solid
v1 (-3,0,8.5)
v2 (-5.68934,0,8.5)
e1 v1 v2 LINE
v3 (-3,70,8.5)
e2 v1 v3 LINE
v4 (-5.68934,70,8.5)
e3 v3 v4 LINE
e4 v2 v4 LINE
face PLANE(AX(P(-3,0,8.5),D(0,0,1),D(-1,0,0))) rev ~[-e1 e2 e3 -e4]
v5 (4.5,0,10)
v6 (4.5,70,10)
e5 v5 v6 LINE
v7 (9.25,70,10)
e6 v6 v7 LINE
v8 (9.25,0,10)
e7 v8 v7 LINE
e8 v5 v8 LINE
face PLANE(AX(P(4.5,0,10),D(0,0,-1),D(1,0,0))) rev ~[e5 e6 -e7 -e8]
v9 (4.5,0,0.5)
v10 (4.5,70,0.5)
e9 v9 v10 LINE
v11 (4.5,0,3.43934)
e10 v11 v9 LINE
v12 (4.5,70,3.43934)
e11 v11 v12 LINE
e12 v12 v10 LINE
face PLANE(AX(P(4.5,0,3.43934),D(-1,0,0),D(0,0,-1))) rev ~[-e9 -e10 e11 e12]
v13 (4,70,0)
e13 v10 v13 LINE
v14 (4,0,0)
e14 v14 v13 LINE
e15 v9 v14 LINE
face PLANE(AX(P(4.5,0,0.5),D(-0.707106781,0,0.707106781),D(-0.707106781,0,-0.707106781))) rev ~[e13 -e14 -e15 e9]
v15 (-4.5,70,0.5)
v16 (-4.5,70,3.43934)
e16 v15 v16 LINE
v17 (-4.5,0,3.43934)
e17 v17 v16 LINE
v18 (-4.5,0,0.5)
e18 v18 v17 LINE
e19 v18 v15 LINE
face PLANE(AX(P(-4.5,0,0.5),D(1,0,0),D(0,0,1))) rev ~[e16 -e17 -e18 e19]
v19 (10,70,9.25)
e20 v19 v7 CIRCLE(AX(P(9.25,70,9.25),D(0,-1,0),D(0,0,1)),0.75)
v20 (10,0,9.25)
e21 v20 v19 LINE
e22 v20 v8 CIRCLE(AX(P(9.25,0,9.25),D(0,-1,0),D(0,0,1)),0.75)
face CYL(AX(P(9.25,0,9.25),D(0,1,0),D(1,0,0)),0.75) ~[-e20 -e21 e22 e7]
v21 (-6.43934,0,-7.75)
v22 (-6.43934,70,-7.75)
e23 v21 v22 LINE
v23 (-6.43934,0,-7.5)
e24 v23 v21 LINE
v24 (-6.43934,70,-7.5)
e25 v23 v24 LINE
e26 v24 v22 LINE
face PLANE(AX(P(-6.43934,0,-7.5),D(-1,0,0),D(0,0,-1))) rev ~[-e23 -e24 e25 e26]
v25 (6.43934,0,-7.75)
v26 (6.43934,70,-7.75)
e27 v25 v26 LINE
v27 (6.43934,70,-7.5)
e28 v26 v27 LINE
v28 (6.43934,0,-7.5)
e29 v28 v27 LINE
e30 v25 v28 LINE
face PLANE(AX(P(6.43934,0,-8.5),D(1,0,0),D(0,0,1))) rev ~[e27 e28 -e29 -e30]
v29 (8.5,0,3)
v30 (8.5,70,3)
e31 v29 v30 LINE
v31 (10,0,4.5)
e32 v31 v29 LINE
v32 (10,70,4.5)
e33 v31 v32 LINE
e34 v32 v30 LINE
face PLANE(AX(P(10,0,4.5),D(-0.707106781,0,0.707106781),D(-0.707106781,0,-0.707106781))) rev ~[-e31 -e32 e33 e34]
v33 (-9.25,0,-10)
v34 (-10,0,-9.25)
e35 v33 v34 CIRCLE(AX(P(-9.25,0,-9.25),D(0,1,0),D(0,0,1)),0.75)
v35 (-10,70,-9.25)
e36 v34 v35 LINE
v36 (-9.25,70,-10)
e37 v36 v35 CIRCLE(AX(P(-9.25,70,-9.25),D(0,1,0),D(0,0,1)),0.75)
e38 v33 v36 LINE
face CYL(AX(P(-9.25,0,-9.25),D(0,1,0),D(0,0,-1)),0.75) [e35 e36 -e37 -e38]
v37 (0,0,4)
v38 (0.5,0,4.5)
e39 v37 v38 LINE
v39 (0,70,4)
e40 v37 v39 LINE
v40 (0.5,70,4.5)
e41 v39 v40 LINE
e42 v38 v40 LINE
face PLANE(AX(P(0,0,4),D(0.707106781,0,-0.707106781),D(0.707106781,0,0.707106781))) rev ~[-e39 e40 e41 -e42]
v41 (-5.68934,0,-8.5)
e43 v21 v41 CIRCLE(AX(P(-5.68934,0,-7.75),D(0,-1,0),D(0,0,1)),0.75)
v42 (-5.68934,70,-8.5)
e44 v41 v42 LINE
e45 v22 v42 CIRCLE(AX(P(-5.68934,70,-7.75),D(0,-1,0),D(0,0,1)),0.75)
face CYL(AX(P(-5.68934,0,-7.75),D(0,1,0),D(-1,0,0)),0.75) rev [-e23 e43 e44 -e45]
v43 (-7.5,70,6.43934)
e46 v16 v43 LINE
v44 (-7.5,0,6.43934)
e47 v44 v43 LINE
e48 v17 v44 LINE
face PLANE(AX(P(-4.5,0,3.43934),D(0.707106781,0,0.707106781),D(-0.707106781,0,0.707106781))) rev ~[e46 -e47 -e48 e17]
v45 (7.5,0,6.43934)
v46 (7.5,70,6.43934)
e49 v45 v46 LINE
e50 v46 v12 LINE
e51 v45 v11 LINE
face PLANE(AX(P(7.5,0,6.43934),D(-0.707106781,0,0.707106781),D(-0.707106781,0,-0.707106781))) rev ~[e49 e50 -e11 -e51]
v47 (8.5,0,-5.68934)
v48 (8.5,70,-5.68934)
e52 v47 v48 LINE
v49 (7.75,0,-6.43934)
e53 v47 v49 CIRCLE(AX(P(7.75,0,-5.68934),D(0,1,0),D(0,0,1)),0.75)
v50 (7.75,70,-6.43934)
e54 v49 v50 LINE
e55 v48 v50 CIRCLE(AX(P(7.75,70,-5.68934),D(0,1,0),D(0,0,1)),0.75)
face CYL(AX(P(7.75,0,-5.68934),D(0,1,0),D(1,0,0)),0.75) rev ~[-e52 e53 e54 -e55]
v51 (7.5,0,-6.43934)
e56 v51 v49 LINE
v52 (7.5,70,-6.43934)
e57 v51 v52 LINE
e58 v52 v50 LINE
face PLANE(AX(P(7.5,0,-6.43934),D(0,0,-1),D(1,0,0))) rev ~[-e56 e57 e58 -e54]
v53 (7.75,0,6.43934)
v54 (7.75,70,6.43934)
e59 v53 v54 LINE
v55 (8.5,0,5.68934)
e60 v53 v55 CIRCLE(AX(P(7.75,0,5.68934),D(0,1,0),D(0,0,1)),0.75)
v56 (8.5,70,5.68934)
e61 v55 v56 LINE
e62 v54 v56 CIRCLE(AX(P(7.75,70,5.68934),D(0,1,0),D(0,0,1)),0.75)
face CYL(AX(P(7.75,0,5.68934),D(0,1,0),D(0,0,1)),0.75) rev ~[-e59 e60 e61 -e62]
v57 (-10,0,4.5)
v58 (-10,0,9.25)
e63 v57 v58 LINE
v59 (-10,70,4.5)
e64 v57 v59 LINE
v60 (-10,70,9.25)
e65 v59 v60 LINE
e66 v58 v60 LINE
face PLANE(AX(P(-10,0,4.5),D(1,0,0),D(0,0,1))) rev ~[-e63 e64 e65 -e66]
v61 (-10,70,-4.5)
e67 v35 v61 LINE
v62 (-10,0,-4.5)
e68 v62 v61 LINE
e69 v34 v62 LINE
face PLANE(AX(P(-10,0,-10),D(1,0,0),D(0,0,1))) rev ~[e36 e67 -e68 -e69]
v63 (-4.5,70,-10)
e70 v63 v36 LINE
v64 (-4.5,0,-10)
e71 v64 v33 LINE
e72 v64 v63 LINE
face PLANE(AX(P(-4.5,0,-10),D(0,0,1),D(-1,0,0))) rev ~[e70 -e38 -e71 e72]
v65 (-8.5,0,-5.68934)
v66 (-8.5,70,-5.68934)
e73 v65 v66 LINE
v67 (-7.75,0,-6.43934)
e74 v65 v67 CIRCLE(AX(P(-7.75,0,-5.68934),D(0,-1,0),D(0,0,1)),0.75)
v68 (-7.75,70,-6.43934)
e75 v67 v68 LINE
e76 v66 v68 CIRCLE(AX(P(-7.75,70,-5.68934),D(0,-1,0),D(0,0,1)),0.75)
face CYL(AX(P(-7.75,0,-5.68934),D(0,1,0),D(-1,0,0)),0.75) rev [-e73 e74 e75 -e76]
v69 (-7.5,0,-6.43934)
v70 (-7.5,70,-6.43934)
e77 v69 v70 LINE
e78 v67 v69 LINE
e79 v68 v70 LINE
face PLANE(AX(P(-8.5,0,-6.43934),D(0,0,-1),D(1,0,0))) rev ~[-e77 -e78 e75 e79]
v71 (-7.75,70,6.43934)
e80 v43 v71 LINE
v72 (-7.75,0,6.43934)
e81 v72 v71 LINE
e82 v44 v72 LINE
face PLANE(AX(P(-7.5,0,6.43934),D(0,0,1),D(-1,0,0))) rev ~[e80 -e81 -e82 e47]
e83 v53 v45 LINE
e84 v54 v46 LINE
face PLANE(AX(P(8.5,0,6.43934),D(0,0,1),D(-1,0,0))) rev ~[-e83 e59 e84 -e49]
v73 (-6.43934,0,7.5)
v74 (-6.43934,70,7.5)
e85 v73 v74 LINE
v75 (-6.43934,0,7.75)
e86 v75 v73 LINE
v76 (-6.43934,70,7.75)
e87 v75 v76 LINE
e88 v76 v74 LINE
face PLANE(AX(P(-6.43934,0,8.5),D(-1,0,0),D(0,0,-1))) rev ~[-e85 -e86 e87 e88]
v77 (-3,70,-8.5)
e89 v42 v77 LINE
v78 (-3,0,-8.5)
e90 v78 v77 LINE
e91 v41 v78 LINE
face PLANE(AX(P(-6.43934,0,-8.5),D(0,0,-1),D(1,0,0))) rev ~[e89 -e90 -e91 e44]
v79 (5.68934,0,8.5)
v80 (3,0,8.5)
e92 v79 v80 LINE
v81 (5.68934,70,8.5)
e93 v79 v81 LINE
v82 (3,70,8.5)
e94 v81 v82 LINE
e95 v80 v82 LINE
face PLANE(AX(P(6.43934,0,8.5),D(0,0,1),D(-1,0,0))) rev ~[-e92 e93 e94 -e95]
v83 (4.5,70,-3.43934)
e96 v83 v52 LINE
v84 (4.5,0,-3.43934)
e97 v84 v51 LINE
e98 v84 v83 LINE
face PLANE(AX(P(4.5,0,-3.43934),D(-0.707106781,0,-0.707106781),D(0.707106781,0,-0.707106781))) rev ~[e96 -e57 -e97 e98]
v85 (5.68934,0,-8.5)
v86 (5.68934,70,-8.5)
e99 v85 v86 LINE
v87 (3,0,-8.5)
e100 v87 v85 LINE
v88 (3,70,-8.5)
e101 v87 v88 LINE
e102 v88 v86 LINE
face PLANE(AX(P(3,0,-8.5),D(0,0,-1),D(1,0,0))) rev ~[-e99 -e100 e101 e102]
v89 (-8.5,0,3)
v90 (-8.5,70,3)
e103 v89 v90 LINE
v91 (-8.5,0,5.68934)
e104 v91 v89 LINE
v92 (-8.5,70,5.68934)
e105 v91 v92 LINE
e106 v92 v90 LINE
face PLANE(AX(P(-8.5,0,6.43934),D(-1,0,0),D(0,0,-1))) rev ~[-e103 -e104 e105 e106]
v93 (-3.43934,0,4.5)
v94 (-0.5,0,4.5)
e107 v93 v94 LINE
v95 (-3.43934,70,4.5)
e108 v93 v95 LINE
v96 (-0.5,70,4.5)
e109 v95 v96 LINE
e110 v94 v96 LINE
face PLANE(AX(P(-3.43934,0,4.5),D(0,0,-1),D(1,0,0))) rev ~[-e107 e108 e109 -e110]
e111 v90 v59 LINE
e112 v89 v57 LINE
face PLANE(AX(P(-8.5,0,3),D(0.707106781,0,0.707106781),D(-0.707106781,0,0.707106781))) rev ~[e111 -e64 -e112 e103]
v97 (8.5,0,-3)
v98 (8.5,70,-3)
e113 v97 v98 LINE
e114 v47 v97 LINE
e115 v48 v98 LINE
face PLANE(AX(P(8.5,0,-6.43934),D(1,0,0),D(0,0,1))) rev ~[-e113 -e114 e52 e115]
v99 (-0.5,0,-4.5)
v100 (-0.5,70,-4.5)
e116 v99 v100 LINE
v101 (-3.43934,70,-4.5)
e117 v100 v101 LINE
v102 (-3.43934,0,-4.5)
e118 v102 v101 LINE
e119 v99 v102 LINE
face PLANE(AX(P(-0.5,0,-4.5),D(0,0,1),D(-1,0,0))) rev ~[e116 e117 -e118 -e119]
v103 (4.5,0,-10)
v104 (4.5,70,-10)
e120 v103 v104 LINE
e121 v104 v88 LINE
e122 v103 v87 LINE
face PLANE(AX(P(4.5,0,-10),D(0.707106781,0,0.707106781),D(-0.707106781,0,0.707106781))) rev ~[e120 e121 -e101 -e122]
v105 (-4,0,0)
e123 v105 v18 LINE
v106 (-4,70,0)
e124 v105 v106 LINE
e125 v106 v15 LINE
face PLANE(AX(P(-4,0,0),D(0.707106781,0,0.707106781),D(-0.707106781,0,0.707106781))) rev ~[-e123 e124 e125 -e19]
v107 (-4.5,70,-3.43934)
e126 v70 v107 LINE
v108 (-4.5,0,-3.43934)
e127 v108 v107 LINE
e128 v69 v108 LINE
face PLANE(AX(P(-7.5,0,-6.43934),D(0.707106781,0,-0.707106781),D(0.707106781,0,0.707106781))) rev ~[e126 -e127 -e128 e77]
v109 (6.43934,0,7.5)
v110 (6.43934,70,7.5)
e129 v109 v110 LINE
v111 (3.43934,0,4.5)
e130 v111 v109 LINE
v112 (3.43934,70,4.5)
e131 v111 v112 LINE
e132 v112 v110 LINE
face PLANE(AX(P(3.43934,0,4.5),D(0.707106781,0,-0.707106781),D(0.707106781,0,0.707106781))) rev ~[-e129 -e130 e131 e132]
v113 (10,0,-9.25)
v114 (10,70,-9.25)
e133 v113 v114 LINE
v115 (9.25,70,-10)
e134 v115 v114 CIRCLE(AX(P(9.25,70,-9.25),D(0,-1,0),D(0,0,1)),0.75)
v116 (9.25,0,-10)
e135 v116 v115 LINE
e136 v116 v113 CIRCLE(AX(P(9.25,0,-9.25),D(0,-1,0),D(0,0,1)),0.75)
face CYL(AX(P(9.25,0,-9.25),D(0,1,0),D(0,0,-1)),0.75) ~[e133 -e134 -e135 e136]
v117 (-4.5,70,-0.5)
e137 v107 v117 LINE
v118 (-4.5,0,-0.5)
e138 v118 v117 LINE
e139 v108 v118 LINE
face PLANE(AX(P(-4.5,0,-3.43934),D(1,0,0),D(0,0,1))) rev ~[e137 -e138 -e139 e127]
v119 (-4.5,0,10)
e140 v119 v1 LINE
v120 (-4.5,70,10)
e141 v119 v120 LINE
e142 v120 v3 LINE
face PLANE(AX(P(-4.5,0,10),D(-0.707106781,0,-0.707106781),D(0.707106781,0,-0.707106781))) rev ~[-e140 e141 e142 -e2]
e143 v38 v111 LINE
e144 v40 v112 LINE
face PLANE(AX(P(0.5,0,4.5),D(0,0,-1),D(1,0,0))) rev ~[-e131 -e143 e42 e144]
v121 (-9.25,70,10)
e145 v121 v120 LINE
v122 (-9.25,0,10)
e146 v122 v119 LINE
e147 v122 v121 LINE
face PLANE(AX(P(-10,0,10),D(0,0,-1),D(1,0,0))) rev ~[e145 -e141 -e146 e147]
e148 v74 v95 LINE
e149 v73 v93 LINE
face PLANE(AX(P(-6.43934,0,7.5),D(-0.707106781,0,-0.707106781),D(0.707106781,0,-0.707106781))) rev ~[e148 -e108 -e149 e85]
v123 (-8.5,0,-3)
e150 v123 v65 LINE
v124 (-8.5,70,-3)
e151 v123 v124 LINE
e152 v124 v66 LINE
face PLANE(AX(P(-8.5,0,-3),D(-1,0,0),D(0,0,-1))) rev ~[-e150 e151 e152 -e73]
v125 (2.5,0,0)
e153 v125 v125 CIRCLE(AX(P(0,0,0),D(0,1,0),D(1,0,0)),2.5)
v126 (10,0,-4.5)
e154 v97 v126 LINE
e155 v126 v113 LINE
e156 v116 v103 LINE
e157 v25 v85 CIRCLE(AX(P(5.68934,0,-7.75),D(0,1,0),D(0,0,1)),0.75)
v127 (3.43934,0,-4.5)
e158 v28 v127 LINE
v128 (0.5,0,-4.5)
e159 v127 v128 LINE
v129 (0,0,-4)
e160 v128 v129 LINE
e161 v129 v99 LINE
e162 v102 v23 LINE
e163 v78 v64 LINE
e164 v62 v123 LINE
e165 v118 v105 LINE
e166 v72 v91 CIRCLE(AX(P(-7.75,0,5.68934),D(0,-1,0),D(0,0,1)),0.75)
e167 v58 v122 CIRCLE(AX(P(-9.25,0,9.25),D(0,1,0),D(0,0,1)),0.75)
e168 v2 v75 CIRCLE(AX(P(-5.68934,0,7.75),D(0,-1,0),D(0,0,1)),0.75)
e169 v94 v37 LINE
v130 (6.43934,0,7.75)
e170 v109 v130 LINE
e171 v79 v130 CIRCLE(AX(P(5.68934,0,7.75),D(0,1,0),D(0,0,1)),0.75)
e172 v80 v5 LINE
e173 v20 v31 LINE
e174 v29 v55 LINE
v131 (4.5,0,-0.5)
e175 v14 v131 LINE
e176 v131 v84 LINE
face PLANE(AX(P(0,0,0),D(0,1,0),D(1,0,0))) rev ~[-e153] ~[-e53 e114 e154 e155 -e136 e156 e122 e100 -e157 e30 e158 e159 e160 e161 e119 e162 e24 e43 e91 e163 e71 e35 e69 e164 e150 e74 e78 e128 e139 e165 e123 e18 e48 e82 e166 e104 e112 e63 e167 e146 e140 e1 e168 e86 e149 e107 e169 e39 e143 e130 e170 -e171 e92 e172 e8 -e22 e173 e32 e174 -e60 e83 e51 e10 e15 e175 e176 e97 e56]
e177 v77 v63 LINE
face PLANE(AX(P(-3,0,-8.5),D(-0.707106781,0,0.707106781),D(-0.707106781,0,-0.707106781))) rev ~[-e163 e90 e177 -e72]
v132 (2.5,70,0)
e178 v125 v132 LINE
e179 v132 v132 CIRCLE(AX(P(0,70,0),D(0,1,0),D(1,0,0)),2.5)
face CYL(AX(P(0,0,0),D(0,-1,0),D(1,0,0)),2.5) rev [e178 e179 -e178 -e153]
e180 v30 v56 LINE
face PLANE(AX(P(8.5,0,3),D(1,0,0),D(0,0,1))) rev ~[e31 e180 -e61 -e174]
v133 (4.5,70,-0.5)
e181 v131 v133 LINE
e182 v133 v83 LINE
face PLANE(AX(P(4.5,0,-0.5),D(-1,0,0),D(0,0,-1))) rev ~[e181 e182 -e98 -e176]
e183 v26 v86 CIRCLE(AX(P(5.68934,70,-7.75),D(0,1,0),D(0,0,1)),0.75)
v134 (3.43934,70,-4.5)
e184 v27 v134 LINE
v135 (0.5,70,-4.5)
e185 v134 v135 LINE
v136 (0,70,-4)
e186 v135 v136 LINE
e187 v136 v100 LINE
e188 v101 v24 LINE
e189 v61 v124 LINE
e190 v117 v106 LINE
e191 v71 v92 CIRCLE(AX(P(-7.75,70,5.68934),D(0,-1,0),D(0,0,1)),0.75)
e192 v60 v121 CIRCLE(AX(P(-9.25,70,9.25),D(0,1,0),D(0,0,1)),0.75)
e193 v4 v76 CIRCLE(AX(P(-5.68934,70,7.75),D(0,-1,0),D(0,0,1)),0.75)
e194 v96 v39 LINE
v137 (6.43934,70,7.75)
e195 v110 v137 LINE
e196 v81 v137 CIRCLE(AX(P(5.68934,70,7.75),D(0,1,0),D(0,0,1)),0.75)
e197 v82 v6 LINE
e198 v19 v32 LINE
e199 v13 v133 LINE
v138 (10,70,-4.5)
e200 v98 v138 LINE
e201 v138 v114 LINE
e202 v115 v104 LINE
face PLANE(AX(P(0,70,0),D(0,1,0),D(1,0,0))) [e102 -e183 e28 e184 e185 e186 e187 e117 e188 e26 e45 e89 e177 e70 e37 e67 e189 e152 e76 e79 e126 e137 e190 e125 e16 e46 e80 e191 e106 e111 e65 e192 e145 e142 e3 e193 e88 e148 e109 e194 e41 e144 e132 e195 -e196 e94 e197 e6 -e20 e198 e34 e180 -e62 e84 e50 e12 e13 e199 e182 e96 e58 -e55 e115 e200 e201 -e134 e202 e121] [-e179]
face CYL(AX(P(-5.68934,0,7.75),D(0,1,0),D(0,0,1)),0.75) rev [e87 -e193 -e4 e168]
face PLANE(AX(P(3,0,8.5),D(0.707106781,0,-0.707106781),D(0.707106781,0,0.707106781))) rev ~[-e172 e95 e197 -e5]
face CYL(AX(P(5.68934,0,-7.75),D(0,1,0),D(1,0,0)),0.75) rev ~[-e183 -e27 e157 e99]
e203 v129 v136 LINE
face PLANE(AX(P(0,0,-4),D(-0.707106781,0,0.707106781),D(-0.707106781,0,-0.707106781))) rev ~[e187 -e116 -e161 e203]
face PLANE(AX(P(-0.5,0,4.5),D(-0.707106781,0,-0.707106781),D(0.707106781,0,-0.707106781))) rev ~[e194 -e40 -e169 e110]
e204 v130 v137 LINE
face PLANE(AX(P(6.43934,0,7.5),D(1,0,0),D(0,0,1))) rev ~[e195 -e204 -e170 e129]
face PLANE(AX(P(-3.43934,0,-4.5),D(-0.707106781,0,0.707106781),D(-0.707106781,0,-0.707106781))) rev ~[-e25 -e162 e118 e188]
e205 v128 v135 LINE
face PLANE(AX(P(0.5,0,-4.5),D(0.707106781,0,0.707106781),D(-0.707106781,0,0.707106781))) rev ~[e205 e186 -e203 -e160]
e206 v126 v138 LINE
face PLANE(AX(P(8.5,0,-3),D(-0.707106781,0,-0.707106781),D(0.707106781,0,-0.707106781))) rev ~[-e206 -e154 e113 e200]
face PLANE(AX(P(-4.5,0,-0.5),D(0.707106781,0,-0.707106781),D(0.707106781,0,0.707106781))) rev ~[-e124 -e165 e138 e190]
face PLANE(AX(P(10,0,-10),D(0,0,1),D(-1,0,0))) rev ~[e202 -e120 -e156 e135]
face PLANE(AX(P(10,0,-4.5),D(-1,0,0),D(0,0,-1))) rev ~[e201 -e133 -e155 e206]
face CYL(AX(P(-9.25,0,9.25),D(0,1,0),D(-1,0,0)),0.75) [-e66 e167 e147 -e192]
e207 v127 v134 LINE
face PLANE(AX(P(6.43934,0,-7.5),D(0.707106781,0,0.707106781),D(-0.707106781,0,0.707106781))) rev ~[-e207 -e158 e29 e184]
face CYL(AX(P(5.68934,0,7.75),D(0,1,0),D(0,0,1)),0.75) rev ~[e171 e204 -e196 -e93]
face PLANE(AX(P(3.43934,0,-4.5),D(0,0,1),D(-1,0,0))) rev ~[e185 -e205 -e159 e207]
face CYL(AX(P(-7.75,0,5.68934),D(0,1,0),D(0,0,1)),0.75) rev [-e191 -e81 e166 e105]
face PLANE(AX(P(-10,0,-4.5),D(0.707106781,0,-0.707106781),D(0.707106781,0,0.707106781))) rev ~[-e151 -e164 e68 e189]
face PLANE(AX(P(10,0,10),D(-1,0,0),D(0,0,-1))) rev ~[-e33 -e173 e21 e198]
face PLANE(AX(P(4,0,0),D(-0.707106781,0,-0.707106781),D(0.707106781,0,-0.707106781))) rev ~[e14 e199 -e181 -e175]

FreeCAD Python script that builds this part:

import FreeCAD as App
import Part
import Sketcher
from FreeCAD import Vector
Q = App.Units.Quantity


def edges_at(feature, points):
    """Names of the edges that pass closest to the given points."""
    edges = feature.Shape.Edges
    near = lambda p: min(range(len(edges)), key=lambda i: edges[i].distToShape(Part.Vertex(*p))[0])
    return sorted({f"Edge{near(p) + 1}" for p in points})


def add_polygon(sketch, points):
    """Adds a closed chain of lines whose ends are joined by coincident constraints."""
    first, n = sketch.GeometryCount, len(points)
    for a, b in zip(points, points[1:] + points[:1]):
        sketch.addGeometry(Part.LineSegment(App.Vector(*a, 0), App.Vector(*b, 0)), False)
    for i in range(n):
        sketch.addConstraint(Sketcher.Constraint("Coincident", first + i, 2, first + (i + 1) % n, 1))

doc = App.newDocument("Part")
body = doc.addObject("PartDesign::Body", "Body")

# Sketch on XZ plane
sketch1 = body.newObject("Sketcher::SketchObject", "Sketch")
sketch1.AttachmentSupport = (doc.getObject("XZ_Plane"), [""])
sketch1.MapMode = "FlatFace"
add_polygon(sketch1, [(0, -4), (-0.5, -4.5), (-3.43934, -4.5), (-6.43934, -7.5), (-6.43934, -8.5), (-3, -8.5), (-4.5, -10), (-10, -10), (-10, -4.5), (-8.5, -3), (-8.5, -6.43934), (-7.5, -6.43934), (-4.5, -3.43934), (-4.5, -0.5), (-4, 0), (-4.5, 0.5), (-4.5, 3.43934), (-7.5, 6.43934), (-8.5, 6.43934), (-8.5, 3), (-10, 4.5), (-10, 10), (-4.5, 10), (-3, 8.5), (-6.43934, 8.5), (-6.43934, 7.5), (-3.43934, 4.5), (-0.5, 4.5), (0, 4), (0.5, 4.5), (3.43934, 4.5), (6.43934, 7.5), (6.43934, 8.5), (3, 8.5), (4.5, 10), (10, 10), (10, 4.5), (8.5, 3), (8.5, 6.43934), (7.5, 6.43934), (4.5, 3.43934), (4.5, 0.5), (4, 0), (4.5, -0.5), (4.5, -3.43934), (7.5, -6.43934), (8.5, -6.43934), (8.5, -3), (10, -4.5), (10, -10), (4.5, -10), (3, -8.5), (6.43934, -8.5), (6.43934, -7.5), (3.43934, -4.5), (0.5, -4.5)])  # lines 0-55
sketch1.addGeometry(Part.Circle(Vector(0, 0, 0), Vector(0, 0, 1), 2.5), False)  # 56
sketch1.addConstraint([
    Sketcher.Constraint("Horizontal", 1),
    Sketcher.Constraint("Vertical", 3),
    Sketcher.Constraint("Horizontal", 4),
    Sketcher.Constraint("Horizontal", 6),
    Sketcher.Constraint("Vertical", 7),
    Sketcher.Constraint("Vertical", 9),
    Sketcher.Constraint("Horizontal", 10),
    Sketcher.Constraint("Vertical", 12),
    Sketcher.Constraint("Vertical", 15),
    Sketcher.Constraint("Horizontal", 17),
    Sketcher.Constraint("Vertical", 18),
    Sketcher.Constraint("Vertical", 20),
    Sketcher.Constraint("Horizontal", 21),
    Sketcher.Constraint("Horizontal", 23),
    Sketcher.Constraint("Vertical", 24),
    Sketcher.Constraint("Horizontal", 26),
    Sketcher.Constraint("Horizontal", 29),
    Sketcher.Constraint("Vertical", 31),
    Sketcher.Constraint("Horizontal", 32),
    Sketcher.Constraint("Horizontal", 34),
    Sketcher.Constraint("Vertical", 35),
    Sketcher.Constraint("Vertical", 37),
    Sketcher.Constraint("Horizontal", 38),
    Sketcher.Constraint("Vertical", 40),
    Sketcher.Constraint("Vertical", 43),
    Sketcher.Constraint("Horizontal", 45),
    Sketcher.Constraint("Vertical", 46),
    Sketcher.Constraint("Vertical", 48),
    Sketcher.Constraint("Horizontal", 49),
    Sketcher.Constraint("Horizontal", 51),
    Sketcher.Constraint("Vertical", 52),
    Sketcher.Constraint("Horizontal", 54),
    Sketcher.Constraint("Coincident", 56, 3, -1, 1),
    Sketcher.Constraint("Symmetric", 0, 2, 28, 2, -1, 1),
    Sketcher.Constraint("Symmetric", 2, 2, 30, 2, -1, 1),
    Sketcher.Constraint("Symmetric", 4, 2, 32, 2, -1, 1),
    Sketcher.Constraint("Symmetric", 5, 2, 33, 2, -1, 1),
    Sketcher.Constraint("Symmetric", 7, 2, 35, 2, -1, 1),
    Sketcher.Constraint("Symmetric", 8, 2, 36, 2, -1, 1),
    Sketcher.Constraint("Symmetric", 10, 2, 38, 2, -1, 1),
    Sketcher.Constraint("Symmetric", 11, 2, 39, 2, -1, 1),
    Sketcher.Constraint("Symmetric", 13, 2, 41, 2, -1, 1),
    Sketcher.Constraint("Symmetric", 14, 2, 42, 2, -1, 1),
    Sketcher.Constraint("Symmetric", 16, 2, 44, 2, -1, 1),
    Sketcher.Constraint("Symmetric", 18, 2, 46, 2, -1, 1),
    Sketcher.Constraint("Symmetric", 19, 2, 47, 2, -1, 1),
    Sketcher.Constraint("Symmetric", 21, 2, 49, 2, -1, 1),
    Sketcher.Constraint("Symmetric", 22, 2, 50, 2, -1, 1),
    Sketcher.Constraint("Symmetric", 24, 2, 52, 2, -1, 1),
    Sketcher.Constraint("Symmetric", 25, 2, 53, 2, -1, 1),
    Sketcher.Constraint("Symmetric", 27, 2, 55, 2, -1, 1),
    Sketcher.Constraint("Symmetric", 26, 2, 28, 2, -2),
    Sketcher.Constraint("Symmetric", 24, 2, 30, 2, -2),
    Sketcher.Constraint("Symmetric", 22, 2, 32, 2, -2),
    Sketcher.Constraint("Symmetric", 21, 2, 33, 2, -2),
    Sketcher.Constraint("Symmetric", 19, 2, 35, 2, -2),
    Sketcher.Constraint("Symmetric", 18, 2, 36, 2, -2),
    Sketcher.Constraint("Symmetric", 16, 2, 38, 2, -2),
    Sketcher.Constraint("Symmetric", 15, 2, 39, 2, -2),
    Sketcher.Constraint("PointOnObject", 13, 2, -1),
    Sketcher.Constraint("PointOnObject", 27, 2, -2),
    Sketcher.Constraint("Parallel", 0, 2),
    Sketcher.Constraint("Parallel", 2, 5),
    Sketcher.Constraint("Parallel", 5, 8),
    Sketcher.Constraint("Parallel", 8, 11),
    Sketcher.Constraint("Parallel", 11, 13),
    Sketcher.Constraint("Perpendicular", 13, 14),
    Sketcher.Constraint("Parallel", 14, 16),
    Sketcher.Constraint("Parallel", 22, 25),
    Sketcher.Constraint("Parallel", 28, 30),
    Sketcher.Constraint("Parallel", 39, 41),
    Sketcher.Constraint("Parallel", 42, 44),
    Sketcher.Constraint("Parallel", 53, 55),
    Sketcher.Constraint("Horizontal", 1, 2, 7, 2),
    Sketcher.Constraint("Vertical", 5, 2, 11, 2),
    Sketcher.Constraint("Equal", 45, 3),
    Sketcher.Constraint("Equal", 49, 7),
    Sketcher.Constraint("Equal", 51, 9),
    Sketcher.Constraint("Equal", 54, 12),
    Sketcher.Constraint("Equal", 5, 8),
    Sketcher.Constraint("Equal", 0, 13),
    Sketcher.Constraint("Diameter", 56, Q("5 mm")),
    Sketcher.Constraint("DistanceX", 10, 1, 10, 2, Q("1 mm")),
    Sketcher.Constraint("DistanceX", 6, 2, 6, 1, Q("5.5 mm")),
    Sketcher.Constraint("DistanceX", 4, 2, -1, 1, Q("3 mm")),
    Sketcher.Constraint("DistanceY", 5, 2, -1, 1, Q("10 mm")),
    Sketcher.Constraint("DistanceX", 13, 2, -1, 1, Q("4 mm")),
    Sketcher.Constraint("DistanceX", 1, 2, 1, 1, Q("2.93934 mm")),
])
pad1 = body.newObject("PartDesign::Pad", "Pad")
pad1.Profile = sketch1
pad1.Length = 70
pad1.Reversed = True
doc.recompute()

fillet = body.newObject("PartDesign::Fillet", "Fillet")
fillet.Base = (pad1, edges_at(pad1, [
    (6.439, 35, -8.5),
    (10, 35, -10),
    (8.5, 35, -6.439),
    (8.5, 35, 6.439),
    (10, 35, 10),
    (6.439, 35, 8.5),
    (-6.439, 35, 8.5),
    (-10, 35, 10),
    (-8.5, 35, 6.439),
    (-8.5, 35, -6.439),
    (-10, 35, -10),
    (-6.439, 35, -8.5),
]))
fillet.Radius = 0.75

doc.recompute()
